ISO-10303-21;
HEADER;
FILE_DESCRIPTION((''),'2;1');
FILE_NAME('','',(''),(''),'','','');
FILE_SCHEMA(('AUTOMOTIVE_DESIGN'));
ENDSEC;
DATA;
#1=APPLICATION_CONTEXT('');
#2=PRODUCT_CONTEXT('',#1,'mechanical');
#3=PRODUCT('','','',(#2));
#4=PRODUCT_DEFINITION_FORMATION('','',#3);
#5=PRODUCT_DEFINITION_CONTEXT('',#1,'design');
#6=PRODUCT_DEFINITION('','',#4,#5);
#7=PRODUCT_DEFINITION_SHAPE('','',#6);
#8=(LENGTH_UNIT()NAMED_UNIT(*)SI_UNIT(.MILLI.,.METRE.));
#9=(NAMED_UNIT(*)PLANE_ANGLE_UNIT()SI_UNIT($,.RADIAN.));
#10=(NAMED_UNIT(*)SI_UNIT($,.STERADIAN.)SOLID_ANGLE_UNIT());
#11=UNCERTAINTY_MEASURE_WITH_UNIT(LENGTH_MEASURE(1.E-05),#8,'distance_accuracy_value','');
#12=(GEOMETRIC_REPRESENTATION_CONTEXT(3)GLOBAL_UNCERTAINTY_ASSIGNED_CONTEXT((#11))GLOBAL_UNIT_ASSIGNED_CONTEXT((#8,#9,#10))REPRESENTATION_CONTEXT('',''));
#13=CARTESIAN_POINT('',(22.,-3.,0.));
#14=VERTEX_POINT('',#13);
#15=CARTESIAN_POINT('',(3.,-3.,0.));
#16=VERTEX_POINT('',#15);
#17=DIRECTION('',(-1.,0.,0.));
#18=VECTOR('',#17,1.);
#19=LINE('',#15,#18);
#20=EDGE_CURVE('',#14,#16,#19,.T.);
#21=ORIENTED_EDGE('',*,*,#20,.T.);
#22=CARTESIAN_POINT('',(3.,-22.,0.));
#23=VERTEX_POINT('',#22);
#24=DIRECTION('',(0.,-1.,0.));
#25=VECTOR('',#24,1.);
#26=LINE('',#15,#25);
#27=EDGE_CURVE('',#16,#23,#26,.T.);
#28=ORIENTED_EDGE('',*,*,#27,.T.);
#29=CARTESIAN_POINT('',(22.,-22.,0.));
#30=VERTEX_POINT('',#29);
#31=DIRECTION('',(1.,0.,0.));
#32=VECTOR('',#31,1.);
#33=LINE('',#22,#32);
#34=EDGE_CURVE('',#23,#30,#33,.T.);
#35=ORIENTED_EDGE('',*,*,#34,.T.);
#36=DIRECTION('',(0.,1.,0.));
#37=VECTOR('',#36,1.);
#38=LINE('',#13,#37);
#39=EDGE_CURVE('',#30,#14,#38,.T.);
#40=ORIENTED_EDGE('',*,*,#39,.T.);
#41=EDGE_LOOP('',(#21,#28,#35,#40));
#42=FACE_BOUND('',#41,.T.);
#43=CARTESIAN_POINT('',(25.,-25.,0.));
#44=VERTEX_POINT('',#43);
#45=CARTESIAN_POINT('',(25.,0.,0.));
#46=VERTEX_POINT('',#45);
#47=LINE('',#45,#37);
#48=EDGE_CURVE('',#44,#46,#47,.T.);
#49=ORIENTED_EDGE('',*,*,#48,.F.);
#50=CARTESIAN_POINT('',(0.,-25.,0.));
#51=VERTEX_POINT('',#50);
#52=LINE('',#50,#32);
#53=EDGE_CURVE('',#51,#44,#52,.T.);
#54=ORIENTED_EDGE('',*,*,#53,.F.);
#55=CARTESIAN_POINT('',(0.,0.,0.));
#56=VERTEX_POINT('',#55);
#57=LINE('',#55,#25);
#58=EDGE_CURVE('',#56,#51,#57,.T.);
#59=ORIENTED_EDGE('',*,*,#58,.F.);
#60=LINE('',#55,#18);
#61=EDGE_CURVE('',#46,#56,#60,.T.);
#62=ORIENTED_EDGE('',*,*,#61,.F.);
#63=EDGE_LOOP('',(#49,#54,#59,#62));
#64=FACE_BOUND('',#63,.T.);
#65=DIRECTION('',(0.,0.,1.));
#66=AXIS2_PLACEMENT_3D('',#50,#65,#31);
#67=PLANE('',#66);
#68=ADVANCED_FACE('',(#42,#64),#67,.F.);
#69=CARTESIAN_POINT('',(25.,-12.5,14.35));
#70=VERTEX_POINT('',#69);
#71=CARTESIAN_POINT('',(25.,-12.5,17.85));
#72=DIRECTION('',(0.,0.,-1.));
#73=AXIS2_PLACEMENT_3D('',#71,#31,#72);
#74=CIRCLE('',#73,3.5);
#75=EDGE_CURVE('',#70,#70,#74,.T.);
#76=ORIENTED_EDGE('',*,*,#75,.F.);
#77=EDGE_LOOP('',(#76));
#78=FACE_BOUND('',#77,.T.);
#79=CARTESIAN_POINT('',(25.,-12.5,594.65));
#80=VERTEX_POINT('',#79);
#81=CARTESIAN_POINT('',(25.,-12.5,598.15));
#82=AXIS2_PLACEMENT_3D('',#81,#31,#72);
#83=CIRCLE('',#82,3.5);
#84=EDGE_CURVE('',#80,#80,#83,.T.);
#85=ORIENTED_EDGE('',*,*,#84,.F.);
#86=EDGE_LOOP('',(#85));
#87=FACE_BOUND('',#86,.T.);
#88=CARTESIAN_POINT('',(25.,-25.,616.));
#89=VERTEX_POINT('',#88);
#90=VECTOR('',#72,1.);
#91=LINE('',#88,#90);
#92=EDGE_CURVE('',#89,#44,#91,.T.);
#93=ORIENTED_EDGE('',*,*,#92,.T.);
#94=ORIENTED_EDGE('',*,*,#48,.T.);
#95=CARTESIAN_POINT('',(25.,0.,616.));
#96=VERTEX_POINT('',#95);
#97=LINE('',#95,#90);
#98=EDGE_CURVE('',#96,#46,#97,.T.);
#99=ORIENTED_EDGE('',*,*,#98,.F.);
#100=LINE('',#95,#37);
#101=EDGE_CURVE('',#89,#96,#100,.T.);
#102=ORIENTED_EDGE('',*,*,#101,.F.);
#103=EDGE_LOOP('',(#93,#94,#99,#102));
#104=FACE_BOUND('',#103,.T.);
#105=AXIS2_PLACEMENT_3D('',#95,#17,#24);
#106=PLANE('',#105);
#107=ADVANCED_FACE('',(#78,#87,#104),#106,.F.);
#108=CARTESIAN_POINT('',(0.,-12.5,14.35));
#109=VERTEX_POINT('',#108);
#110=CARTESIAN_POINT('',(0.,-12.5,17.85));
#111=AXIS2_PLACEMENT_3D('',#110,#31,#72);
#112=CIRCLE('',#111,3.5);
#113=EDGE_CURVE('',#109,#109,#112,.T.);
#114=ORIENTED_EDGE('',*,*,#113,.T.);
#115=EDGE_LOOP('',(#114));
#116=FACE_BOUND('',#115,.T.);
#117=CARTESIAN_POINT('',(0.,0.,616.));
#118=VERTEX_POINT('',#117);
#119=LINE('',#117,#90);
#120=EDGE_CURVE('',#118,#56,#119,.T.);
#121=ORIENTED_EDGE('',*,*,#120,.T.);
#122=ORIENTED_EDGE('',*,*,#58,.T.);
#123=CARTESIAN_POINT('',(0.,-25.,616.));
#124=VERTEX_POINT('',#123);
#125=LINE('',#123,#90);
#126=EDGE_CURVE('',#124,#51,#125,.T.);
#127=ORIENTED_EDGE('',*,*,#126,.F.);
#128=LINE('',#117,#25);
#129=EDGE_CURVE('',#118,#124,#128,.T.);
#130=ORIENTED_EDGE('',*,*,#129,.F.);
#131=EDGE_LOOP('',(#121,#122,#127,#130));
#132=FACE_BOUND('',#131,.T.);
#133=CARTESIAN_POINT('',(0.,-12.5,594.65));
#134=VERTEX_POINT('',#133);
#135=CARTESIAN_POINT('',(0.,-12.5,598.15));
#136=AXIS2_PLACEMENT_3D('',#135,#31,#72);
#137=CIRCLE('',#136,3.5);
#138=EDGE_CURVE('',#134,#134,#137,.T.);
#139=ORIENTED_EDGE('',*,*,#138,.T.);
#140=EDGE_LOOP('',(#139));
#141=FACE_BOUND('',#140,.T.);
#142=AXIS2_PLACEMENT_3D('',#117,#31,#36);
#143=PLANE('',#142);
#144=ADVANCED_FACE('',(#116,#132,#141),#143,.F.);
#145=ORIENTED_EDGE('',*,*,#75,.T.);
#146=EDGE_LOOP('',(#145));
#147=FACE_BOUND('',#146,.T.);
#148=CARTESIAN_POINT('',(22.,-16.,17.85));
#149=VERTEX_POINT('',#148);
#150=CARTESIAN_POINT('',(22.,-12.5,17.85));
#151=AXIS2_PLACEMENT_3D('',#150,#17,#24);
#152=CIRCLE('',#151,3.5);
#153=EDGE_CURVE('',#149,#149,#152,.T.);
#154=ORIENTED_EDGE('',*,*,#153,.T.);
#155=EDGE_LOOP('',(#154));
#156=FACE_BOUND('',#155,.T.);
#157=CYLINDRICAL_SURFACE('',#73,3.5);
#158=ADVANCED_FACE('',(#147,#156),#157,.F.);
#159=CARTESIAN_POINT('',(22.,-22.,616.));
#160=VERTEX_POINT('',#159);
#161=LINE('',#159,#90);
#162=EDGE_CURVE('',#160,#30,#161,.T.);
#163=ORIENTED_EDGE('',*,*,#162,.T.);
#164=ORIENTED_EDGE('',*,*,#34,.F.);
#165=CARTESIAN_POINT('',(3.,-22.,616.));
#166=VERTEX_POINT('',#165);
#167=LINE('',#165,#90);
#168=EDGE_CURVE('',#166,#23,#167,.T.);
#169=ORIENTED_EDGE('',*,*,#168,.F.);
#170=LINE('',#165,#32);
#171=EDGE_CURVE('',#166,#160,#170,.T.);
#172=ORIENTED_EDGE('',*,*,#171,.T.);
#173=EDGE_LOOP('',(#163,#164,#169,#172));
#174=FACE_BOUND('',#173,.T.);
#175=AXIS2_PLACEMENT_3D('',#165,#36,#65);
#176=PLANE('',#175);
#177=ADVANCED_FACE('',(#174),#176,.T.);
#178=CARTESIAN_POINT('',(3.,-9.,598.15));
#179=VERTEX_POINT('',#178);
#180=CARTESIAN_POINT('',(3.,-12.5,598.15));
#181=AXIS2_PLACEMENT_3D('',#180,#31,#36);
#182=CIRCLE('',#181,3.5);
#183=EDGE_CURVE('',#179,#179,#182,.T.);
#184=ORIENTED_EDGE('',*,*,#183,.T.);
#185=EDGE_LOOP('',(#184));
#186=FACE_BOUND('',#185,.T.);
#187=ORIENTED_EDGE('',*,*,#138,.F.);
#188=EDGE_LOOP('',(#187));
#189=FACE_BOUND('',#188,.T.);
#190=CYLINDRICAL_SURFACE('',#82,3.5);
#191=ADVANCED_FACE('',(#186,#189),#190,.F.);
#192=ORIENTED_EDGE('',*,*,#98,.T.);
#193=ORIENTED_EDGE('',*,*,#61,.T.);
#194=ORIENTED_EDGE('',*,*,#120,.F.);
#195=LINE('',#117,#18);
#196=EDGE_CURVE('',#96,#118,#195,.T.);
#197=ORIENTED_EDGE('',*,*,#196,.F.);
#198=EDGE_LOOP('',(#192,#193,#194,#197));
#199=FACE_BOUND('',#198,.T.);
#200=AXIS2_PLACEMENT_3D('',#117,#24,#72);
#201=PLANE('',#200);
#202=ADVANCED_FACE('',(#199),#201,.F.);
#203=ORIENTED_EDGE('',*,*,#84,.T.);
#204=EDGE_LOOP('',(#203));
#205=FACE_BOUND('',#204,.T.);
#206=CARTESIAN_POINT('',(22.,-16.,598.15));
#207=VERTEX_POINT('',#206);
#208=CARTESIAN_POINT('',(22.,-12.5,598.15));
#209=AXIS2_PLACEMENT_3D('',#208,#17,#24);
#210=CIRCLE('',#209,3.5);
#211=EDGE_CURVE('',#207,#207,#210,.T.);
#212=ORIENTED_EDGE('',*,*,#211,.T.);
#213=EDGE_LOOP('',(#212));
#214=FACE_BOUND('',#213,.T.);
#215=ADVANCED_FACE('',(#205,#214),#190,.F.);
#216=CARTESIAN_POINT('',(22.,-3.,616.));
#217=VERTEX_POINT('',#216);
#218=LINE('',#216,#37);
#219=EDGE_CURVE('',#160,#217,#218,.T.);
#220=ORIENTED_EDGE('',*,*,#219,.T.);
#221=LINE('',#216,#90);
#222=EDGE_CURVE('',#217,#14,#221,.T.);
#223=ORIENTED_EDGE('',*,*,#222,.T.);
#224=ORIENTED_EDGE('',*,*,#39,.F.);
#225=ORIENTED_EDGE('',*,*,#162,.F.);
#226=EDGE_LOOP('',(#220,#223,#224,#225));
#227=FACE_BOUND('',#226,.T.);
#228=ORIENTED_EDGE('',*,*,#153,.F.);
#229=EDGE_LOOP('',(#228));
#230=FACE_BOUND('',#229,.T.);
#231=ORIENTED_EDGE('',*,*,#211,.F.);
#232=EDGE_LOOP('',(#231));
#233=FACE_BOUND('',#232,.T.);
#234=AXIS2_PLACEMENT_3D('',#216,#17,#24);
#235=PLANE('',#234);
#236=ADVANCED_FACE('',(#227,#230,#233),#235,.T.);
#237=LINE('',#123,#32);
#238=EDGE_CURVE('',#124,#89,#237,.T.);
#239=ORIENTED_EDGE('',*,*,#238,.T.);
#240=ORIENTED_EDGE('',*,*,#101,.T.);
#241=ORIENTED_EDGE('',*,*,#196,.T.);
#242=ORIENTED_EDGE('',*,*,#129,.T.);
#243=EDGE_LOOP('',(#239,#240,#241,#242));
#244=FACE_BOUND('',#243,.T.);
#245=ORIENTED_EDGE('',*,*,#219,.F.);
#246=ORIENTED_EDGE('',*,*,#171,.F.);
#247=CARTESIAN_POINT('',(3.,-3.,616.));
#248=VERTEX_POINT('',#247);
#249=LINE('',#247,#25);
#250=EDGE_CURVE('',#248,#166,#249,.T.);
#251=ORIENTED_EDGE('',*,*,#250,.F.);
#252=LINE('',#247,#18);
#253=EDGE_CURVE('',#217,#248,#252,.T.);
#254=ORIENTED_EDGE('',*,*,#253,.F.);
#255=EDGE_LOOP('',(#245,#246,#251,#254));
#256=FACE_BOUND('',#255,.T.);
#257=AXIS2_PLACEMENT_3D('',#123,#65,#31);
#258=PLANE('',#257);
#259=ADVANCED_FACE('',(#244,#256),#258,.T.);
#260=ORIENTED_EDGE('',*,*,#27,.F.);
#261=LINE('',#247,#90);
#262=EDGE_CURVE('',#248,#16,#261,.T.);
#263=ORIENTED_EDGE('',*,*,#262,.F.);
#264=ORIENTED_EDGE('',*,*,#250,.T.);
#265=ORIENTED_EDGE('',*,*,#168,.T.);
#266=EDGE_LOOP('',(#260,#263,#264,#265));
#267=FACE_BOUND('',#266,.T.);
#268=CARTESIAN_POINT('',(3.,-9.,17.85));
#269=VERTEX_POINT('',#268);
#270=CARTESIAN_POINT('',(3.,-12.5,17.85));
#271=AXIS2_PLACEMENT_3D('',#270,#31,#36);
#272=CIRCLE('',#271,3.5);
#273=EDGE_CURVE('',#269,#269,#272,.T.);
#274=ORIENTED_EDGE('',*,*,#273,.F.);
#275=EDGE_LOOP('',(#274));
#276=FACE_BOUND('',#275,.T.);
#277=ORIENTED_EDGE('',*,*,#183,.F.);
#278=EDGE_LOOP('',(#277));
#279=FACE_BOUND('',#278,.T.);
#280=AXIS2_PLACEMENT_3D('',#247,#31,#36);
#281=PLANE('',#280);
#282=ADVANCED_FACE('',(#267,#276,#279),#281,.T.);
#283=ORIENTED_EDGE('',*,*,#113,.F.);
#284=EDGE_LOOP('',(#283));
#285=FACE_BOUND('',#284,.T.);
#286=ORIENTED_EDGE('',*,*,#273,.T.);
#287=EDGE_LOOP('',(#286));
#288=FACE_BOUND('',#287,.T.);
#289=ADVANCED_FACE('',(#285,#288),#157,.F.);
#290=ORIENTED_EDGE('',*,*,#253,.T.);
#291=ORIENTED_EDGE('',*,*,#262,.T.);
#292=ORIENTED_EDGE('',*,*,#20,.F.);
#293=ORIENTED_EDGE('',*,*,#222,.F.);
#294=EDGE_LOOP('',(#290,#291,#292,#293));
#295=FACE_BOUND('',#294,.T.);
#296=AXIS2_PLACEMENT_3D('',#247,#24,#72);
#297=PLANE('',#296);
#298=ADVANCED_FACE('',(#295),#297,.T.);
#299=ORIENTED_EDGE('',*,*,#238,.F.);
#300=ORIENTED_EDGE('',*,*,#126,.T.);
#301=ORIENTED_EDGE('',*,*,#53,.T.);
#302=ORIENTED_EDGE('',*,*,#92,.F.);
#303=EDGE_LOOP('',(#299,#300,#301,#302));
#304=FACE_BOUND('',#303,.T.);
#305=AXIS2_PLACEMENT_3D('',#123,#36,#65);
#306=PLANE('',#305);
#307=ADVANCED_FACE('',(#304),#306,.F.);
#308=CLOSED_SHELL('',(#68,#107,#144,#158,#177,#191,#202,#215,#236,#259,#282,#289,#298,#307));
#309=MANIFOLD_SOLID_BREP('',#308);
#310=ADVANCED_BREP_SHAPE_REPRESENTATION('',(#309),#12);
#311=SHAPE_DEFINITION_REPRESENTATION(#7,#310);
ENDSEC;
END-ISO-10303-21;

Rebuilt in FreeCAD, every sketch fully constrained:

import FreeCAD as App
import Part
import Sketcher
from FreeCAD import Vector
Q = App.Units.Quantity

doc = App.newDocument("Part")
body = doc.addObject("PartDesign::Body", "Body")

# Sketch on XY plane
sketch1 = body.newObject("Sketcher::SketchObject", "Sketch")
sketch1.AttachmentSupport = (doc.getObject("XY_Plane"), [""])
sketch1.MapMode = "FlatFace"
sketch1.addGeometry([
    Part.LineSegment(Vector(0, 0, 0), Vector(0, -25, 0)),  # 0
    Part.LineSegment(Vector(0, -25, 0), Vector(25, -25, 0)),  # 1
    Part.LineSegment(Vector(25, -25, 0), Vector(25, 0, 0)),  # 2
    Part.LineSegment(Vector(25, 0, 0), Vector(0, 0, 0)),  # 3
    Part.LineSegment(Vector(22, -22, 0), Vector(3, -22, 0)),  # 4
    Part.LineSegment(Vector(3, -22, 0), Vector(3, -3, 0)),  # 5
    Part.LineSegment(Vector(3, -3, 0), Vector(22, -3, 0)),  # 6
    Part.LineSegment(Vector(22, -3, 0), Vector(22, -22, 0)),  # 7
], False)
sketch1.addConstraint([
    Sketcher.Constraint("Coincident", 0, 2, 1, 1),
    Sketcher.Constraint("Coincident", 1, 2, 2, 1),
    Sketcher.Constraint("Coincident", 2, 2, 3, 1),
    Sketcher.Constraint("Coincident", 3, 2, 0, 1),
    Sketcher.Constraint("Coincident", 4, 2, 5, 1),
    Sketcher.Constraint("Coincident", 5, 2, 6, 1),
    Sketcher.Constraint("Coincident", 6, 2, 7, 1),
    Sketcher.Constraint("Coincident", 7, 2, 4, 1),
    Sketcher.Constraint("Vertical", 0),
    Sketcher.Constraint("Horizontal", 1),
    Sketcher.Constraint("Vertical", 2),
    Sketcher.Constraint("Horizontal", 3),
    Sketcher.Constraint("Horizontal", 4),
    Sketcher.Constraint("Vertical", 5),
    Sketcher.Constraint("Horizontal", 6),
    Sketcher.Constraint("Vertical", 7),
    Sketcher.Constraint("Coincident", 3, 2, -1, 1),
    Sketcher.Constraint("Equal", 3, 0),
    Sketcher.Constraint("Equal", 6, 5),
    Sketcher.Constraint("DistanceX", 1, 1, 1, 2, Q("25 mm")),
    Sketcher.Constraint("DistanceX", 4, 2, 4, 1, Q("19 mm")),
    Sketcher.Constraint("DistanceX", -1, 1, 4, 2, Q("3 mm")),
    Sketcher.Constraint("DistanceY", 4, 2, -1, 1, Q("22 mm")),
])
pad1 = body.newObject("PartDesign::Pad", "Pad")
pad1.Profile = sketch1
pad1.Length = 616

# Sketch on YZ plane
sketch2 = body.newObject("Sketcher::SketchObject", "Sketch001")
sketch2.AttachmentSupport = (doc.getObject("YZ_Plane"), [""])
sketch2.MapMode = "FlatFace"
sketch2.AttachmentOffset = App.Placement(Vector(0, 0, 25), App.Rotation())
sketch2.addGeometry(Part.Circle(Vector(-12.5, 598.1, 0), Vector(0, 0, 1), 3.5), False)
sketch2.addConstraint([
    Sketcher.Constraint("Diameter", 0, Q("7 mm")),
    Sketcher.Constraint("DistanceX", 0, 3, -1, 1, Q("12.5 mm")),
    Sketcher.Constraint("DistanceY", -1, 1, 0, 3, Q("598.15 mm")),
])
doc.recompute()
hole = body.newObject("PartDesign::Hole", "Hole")
hole.Profile = sketch2
hole.ThreadType = "None"
hole.Diameter = 7
hole.DepthType = "ThroughAll"
doc.recompute()

linearpattern = body.newObject("PartDesign::LinearPattern", "LinearPattern")
linearpattern.Originals = [hole]
linearpattern.Direction = (doc.getObject("Z_Axis"), [""])
linearpattern.Mode = "offset"
linearpattern.Offset = 580.3
linearpattern.Occurrences = 2
linearpattern.Reversed = True
body.Tip = linearpattern

doc.recompute()
